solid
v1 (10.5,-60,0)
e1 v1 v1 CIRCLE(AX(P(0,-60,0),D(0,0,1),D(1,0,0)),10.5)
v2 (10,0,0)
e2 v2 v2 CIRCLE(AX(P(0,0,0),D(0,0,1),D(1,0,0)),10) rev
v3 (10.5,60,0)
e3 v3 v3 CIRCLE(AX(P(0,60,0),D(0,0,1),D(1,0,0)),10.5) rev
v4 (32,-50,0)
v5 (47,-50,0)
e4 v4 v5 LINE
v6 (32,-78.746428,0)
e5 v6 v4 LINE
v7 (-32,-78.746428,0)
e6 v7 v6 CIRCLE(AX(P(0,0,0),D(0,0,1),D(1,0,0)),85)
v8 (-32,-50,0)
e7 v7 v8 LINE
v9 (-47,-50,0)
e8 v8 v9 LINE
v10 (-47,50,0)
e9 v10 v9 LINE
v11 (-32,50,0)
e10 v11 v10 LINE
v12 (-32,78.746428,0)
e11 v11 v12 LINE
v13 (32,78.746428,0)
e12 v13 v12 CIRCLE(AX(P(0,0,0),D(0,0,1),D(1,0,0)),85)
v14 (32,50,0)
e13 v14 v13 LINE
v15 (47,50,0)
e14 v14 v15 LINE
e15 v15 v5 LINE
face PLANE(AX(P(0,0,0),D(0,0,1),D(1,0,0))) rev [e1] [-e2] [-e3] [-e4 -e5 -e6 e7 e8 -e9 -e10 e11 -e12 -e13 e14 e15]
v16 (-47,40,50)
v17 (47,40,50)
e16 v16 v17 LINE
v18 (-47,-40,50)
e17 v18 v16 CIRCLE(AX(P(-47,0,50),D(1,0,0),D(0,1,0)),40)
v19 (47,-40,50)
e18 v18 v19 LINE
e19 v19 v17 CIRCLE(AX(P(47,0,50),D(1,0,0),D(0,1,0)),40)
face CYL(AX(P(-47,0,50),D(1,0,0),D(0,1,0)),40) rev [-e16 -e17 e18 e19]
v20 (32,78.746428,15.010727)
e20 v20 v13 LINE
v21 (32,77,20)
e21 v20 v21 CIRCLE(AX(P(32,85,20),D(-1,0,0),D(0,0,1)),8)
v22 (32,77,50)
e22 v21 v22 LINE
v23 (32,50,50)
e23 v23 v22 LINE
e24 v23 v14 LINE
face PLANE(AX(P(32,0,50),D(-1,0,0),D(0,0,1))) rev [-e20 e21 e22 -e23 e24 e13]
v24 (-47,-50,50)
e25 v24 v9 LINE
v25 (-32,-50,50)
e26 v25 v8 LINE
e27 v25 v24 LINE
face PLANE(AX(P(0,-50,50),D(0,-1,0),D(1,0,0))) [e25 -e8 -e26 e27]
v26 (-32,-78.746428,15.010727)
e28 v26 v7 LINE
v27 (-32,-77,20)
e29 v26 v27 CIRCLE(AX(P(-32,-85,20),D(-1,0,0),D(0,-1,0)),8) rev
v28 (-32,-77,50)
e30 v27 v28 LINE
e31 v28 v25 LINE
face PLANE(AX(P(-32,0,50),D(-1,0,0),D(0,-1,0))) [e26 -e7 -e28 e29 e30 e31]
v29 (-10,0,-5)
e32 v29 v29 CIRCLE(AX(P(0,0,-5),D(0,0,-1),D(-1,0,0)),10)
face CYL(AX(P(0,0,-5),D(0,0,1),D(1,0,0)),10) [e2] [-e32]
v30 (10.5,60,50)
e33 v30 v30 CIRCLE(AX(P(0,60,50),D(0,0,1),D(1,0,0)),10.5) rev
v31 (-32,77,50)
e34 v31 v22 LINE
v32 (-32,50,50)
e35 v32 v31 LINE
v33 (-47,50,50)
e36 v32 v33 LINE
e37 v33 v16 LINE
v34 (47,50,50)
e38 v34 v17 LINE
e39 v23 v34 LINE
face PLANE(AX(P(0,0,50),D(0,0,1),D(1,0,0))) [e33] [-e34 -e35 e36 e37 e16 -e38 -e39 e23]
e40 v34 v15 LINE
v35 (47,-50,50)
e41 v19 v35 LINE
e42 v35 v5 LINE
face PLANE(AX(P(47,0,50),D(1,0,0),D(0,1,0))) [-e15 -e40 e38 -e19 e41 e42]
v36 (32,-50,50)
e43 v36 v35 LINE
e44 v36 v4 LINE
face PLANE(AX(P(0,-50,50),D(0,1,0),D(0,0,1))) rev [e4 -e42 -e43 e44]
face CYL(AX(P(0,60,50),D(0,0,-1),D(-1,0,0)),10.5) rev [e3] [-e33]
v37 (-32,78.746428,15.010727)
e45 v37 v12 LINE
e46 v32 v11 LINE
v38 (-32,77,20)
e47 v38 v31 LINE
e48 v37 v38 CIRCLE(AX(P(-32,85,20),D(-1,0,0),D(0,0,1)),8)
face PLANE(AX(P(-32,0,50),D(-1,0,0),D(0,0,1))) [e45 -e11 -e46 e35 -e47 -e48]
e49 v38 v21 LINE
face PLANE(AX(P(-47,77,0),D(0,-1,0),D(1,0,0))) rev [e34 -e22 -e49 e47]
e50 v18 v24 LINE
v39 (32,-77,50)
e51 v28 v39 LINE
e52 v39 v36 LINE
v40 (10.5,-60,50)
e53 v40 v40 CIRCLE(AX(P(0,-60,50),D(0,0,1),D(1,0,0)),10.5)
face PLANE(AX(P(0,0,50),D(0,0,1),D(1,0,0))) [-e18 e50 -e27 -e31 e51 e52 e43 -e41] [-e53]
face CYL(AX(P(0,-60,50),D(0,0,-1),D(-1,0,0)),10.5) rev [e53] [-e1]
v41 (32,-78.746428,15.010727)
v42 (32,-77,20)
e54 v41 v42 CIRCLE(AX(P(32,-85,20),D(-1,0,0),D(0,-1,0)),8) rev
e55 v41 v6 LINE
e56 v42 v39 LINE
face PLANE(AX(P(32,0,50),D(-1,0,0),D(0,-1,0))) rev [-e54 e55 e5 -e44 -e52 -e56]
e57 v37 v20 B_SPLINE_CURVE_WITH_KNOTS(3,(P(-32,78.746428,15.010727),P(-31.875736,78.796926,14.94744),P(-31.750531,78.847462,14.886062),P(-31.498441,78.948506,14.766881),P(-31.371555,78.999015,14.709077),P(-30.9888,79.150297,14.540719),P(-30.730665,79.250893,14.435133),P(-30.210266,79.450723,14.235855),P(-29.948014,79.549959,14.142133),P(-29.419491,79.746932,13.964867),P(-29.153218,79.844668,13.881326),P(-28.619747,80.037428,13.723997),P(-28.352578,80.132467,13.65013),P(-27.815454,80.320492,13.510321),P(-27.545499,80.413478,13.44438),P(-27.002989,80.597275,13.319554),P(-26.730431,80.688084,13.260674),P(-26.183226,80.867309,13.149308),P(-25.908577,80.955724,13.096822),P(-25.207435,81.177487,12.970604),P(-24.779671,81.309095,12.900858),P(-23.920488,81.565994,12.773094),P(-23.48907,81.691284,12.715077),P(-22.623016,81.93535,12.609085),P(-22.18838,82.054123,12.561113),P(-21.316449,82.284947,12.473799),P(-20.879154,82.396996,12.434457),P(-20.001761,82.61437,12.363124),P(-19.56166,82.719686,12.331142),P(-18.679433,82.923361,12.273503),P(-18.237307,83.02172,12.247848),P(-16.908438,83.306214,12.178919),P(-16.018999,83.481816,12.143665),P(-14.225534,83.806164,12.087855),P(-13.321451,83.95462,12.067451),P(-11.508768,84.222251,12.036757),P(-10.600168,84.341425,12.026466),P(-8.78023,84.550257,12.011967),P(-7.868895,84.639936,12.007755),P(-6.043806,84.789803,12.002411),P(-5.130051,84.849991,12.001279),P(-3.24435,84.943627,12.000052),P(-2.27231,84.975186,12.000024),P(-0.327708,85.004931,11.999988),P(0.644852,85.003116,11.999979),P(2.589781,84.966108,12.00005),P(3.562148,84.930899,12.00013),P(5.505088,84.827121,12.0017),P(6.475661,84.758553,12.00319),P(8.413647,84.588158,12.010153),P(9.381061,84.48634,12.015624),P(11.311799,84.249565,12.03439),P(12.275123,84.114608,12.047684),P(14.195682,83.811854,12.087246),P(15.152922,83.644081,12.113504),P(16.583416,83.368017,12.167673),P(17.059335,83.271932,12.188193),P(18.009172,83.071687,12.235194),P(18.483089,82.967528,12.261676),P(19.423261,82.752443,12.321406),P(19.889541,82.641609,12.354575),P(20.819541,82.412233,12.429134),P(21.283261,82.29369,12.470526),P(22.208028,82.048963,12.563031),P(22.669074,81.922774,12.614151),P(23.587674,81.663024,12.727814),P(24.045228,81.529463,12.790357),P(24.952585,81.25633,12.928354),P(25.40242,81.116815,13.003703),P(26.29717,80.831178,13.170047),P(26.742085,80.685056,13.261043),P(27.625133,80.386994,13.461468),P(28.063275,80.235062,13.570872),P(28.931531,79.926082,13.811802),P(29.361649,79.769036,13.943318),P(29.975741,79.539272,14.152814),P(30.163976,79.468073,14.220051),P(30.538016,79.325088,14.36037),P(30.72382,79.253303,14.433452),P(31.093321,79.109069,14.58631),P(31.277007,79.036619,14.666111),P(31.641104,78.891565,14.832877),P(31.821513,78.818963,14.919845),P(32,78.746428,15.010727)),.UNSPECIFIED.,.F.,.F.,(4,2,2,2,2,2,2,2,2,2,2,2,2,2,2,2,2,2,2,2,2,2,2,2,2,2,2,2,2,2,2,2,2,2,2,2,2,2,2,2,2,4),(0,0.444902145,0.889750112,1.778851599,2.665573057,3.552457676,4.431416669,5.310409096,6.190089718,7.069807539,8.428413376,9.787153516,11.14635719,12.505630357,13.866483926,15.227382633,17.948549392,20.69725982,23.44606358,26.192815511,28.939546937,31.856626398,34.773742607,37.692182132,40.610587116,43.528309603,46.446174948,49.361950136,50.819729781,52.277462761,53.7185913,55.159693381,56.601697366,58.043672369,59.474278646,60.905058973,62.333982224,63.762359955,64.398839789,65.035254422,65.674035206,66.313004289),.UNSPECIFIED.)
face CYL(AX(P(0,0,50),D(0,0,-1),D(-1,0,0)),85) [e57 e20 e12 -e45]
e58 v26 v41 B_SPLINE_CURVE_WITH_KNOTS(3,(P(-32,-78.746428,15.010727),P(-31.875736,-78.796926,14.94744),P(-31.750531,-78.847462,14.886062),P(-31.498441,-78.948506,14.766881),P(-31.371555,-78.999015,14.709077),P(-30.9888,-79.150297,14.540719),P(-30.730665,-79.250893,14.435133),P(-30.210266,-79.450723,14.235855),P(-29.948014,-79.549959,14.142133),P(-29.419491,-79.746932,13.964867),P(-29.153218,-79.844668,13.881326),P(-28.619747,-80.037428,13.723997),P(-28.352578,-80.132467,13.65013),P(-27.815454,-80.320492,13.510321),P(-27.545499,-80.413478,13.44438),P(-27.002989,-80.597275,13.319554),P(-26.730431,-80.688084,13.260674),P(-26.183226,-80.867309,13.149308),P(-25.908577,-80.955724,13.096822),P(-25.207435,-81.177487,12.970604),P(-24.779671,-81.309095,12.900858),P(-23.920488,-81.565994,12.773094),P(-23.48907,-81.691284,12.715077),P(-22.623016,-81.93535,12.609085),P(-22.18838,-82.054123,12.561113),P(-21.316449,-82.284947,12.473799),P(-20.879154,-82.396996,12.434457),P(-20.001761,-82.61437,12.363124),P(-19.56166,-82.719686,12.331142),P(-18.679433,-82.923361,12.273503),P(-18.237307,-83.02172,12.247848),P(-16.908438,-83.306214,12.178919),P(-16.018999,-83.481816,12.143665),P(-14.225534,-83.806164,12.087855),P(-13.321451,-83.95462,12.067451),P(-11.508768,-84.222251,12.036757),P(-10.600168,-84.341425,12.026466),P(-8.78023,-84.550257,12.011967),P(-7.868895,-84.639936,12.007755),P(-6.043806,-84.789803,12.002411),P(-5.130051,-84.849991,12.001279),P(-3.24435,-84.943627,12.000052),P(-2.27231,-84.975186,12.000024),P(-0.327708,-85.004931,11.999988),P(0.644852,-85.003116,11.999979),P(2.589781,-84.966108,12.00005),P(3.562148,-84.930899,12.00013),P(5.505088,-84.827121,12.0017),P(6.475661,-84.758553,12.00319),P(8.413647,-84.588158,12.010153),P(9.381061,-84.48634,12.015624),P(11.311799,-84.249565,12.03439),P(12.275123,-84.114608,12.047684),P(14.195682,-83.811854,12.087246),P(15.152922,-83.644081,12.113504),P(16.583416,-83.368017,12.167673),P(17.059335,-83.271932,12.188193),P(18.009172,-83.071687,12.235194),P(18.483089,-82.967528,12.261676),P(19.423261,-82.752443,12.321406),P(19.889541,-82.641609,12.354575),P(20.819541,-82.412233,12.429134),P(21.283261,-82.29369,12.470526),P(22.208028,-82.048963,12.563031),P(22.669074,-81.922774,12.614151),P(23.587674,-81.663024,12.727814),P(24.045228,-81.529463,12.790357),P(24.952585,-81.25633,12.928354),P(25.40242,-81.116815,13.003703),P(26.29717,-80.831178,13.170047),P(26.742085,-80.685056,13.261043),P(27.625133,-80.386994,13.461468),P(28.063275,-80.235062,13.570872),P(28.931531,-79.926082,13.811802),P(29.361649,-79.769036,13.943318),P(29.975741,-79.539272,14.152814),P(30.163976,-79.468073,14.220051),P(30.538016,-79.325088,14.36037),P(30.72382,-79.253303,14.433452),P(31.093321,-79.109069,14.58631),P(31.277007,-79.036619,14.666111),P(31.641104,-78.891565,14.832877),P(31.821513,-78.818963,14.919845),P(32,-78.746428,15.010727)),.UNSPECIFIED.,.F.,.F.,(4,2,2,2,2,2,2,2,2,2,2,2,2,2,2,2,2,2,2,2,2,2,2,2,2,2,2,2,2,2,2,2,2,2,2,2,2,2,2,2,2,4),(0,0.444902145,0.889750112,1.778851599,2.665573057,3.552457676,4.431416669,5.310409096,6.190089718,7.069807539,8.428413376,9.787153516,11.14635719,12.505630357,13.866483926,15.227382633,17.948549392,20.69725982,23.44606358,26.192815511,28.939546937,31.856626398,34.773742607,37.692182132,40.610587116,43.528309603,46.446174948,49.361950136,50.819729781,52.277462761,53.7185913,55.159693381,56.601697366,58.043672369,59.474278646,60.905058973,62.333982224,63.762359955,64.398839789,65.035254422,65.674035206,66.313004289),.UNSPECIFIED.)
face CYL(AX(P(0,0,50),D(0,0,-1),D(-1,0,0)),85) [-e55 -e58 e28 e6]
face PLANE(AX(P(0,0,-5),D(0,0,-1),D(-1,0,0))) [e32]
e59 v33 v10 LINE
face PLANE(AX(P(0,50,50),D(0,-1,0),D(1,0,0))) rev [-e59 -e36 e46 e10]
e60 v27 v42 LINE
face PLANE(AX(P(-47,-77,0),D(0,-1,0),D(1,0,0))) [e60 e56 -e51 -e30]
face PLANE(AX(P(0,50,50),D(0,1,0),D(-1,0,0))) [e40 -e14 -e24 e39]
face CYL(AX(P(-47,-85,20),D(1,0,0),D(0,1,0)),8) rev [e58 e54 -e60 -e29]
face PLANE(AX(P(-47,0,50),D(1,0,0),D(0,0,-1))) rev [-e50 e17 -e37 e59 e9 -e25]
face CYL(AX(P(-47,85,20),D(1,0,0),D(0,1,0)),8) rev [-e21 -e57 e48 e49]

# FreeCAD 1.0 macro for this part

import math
import FreeCAD as App
import Part
import Sketcher

V = App.Vector
Q = App.Units.Quantity

doc = App.newDocument("Part")
params = doc.addObject("Spreadsheet::Sheet", "Params")
for row, (alias, value) in enumerate([
    ("sketch1_diameter", "21 mm"),
    ("sketch1_radius", "85 mm"),
    ("sketch1_width", "15 mm"),
    ("sketch1_height", "100 mm"),
    ("pad1_length", "50 mm"),
    ("sketch2_radius", "40 mm"),
    ("sketch2_radius2", "8 mm"),
    ("sketch2_height", "30 mm"),
    ("sketch3_diameter", "20 mm"),
    ("pad2_length", "5 mm"),
], start=1):
    params.set(f"A{row}", alias)
    params.set(f"B{row}", "=" + value)
    params.setAlias(f"B{row}", alias)

body = doc.addObject("PartDesign::Body", "Body")

# Sketch on XY plane
sketch1 = body.newObject("Sketcher::SketchObject", "Sketch")
sketch1.AttachmentSupport = (doc.getObject("XY_Plane"), [""])
sketch1.MapMode = "FlatFace"
sketch1.addGeometry(Part.ArcOfCircle(Part.Circle(V(0, 0, 0), V(0, 0, 1), 85), math.radians(68), math.radians(112)), False)
sketch1.addGeometry(Part.LineSegment(V(-32, 79, 0), V(-32, 50, 0)), False)
sketch1.addGeometry(Part.LineSegment(V(-32, 50, 0), V(-47, 50, 0)), False)
sketch1.addGeometry(Part.LineSegment(V(-47, 50, 0), V(-47, -50, 0)), False)
sketch1.addGeometry(Part.LineSegment(V(-47, -50, 0), V(-32, -50, 0)), False)
sketch1.addGeometry(Part.LineSegment(V(-32, -50, 0), V(-32, -79, 0)), False)
sketch1.addGeometry(Part.ArcOfCircle(Part.Circle(V(0, 0, 0), V(0, 0, 1), 85), math.radians(-112), math.radians(-68)), False)
sketch1.addGeometry(Part.LineSegment(V(32, -79, 0), V(32, -50, 0)), False)
sketch1.addGeometry(Part.LineSegment(V(32, -50, 0), V(47, -50, 0)), False)
sketch1.addGeometry(Part.LineSegment(V(47, -50, 0), V(47, 50, 0)), False)
sketch1.addGeometry(Part.LineSegment(V(47, 50, 0), V(32, 50, 0)), False)
sketch1.addGeometry(Part.LineSegment(V(32, 50, 0), V(32, 79, 0)), False)
sketch1.addGeometry(Part.Circle(V(0, 60, 0), V(0, 0, 1), 10), False)
sketch1.addGeometry(Part.Circle(V(0, -60, 0), V(0, 0, 1), 10), False)
sketch1.addConstraint(Sketcher.Constraint("Coincident", 0, 2, 1, 1))
sketch1.addConstraint(Sketcher.Constraint("Coincident", 1, 2, 2, 1))
sketch1.addConstraint(Sketcher.Constraint("Coincident", 2, 2, 3, 1))
sketch1.addConstraint(Sketcher.Constraint("Coincident", 3, 2, 4, 1))
sketch1.addConstraint(Sketcher.Constraint("Coincident", 4, 2, 5, 1))
sketch1.addConstraint(Sketcher.Constraint("Coincident", 5, 2, 6, 1))
sketch1.addConstraint(Sketcher.Constraint("Coincident", 6, 2, 7, 1))
sketch1.addConstraint(Sketcher.Constraint("Coincident", 7, 2, 8, 1))
sketch1.addConstraint(Sketcher.Constraint("Coincident", 8, 2, 9, 1))
sketch1.addConstraint(Sketcher.Constraint("Coincident", 9, 2, 10, 1))
sketch1.addConstraint(Sketcher.Constraint("Coincident", 10, 2, 11, 1))
sketch1.addConstraint(Sketcher.Constraint("Coincident", 11, 2, 0, 1))
sketch1.addConstraint(Sketcher.Constraint("Vertical", 1))
sketch1.addConstraint(Sketcher.Constraint("Horizontal", 2))
sketch1.addConstraint(Sketcher.Constraint("Vertical", 3))
sketch1.addConstraint(Sketcher.Constraint("Horizontal", 4))
sketch1.addConstraint(Sketcher.Constraint("Vertical", 5))
sketch1.addConstraint(Sketcher.Constraint("Vertical", 7))
sketch1.addConstraint(Sketcher.Constraint("Horizontal", 8))
sketch1.addConstraint(Sketcher.Constraint("Vertical", 9))
sketch1.addConstraint(Sketcher.Constraint("Horizontal", 10))
sketch1.addConstraint(Sketcher.Constraint("Vertical", 11))
sketch1.addConstraint(Sketcher.Constraint("Coincident", 0, 3, -1, 1))
sketch1.addConstraint(Sketcher.Constraint("Coincident", 6, 3, -1, 1))
sketch1.addConstraint(Sketcher.Constraint("Equal", 0, 6))
sketch1.addConstraint(Sketcher.Constraint("Equal", 12, 13))
sketch1.addConstraint(Sketcher.Constraint("Symmetric", 12, 3, 13, 3, -1, 1))
sketch1.addConstraint(Sketcher.Constraint("Symmetric", 1, 2, 7, 2, -1, 1))
sketch1.addConstraint(Sketcher.Constraint("Symmetric", 3, 2, 9, 2, -1, 1))
sketch1.addConstraint(Sketcher.Constraint("Symmetric", 4, 2, 7, 2, -2))
sketch1.addConstraint(Sketcher.Constraint("PointOnObject", 12, 3, -2))
sketch1.addConstraint(Sketcher.Constraint("Horizontal", 0, 2, 11, 2))
sketch1.addConstraint(Sketcher.Constraint("Diameter", 12, Q("21 mm")))
sketch1.addConstraint(Sketcher.Constraint("Radius", 0, Q("85 mm")))
sketch1.addConstraint(Sketcher.Constraint("DistanceX", 2, 2, 2, 1, Q("15 mm")))
sketch1.addConstraint(Sketcher.Constraint("DistanceY", 3, 2, 3, 1, Q("100 mm")))
sketch1.addConstraint(Sketcher.Constraint("DistanceY", -1, 1, 12, 3, Q("60 mm")))
sketch1.addConstraint(Sketcher.Constraint("DistanceX", 0, 2, -1, 1, Q("32 mm")))
sketch1.setExpression("Constraints[32]", "Params.sketch1_diameter")
sketch1.setExpression("Constraints[33]", "Params.sketch1_radius")
sketch1.setExpression("Constraints[34]", "Params.sketch1_width")
sketch1.setExpression("Constraints[35]", "Params.sketch1_height")
pad1 = body.newObject("PartDesign::Pad", "Pad")
pad1.Profile = sketch1
pad1.setExpression("Length", "Params.pad1_length")

# Sketch on YZ plane
sketch2 = body.newObject("Sketcher::SketchObject", "Sketch001")
sketch2.AttachmentSupport = (doc.getObject("YZ_Plane"), [""])
sketch2.MapMode = "FlatFace"
sketch2.AttachmentOffset = App.Placement(V(0, 0, 47), App.Rotation())
sketch2.addGeometry(Part.LineSegment(V(40, 50, 0), V(-40, 50, 0)), False)
sketch2.addGeometry(Part.ArcOfCircle(Part.Circle(V(0, 50, 0), V(0, 0, 1), 40), math.radians(180), math.radians(360)), False)
sketch2.addGeometry(Part.LineSegment(V(-77, 20, 0), V(-77, 50, 0)), False)
sketch2.addGeometry(Part.LineSegment(V(-77, 50, 0), V(-85, 50, 0)), False)
sketch2.addGeometry(Part.LineSegment(V(-85, 50, 0), V(-85, 12, 0)), False)
sketch2.addGeometry(Part.ArcOfCircle(Part.Circle(V(-85, 20, 0), V(0, 0, 1), 8), math.radians(-90), math.radians(0)), False)
sketch2.addGeometry(Part.LineSegment(V(85, 12, 0), V(85, 50, 0)), False)
sketch2.addGeometry(Part.LineSegment(V(85, 50, 0), V(77, 50, 0)), False)
sketch2.addGeometry(Part.LineSegment(V(77, 50, 0), V(77, 20, 0)), False)
sketch2.addGeometry(Part.ArcOfCircle(Part.Circle(V(85, 20, 0), V(0, 0, 1), 8), math.radians(-180), math.radians(-90)), False)
sketch2.addConstraint(Sketcher.Constraint("Coincident", 0, 1, 1, 2))
sketch2.addConstraint(Sketcher.Constraint("Coincident", 1, 1, 0, 2))
sketch2.addConstraint(Sketcher.Constraint("Coincident", 2, 2, 3, 1))
sketch2.addConstraint(Sketcher.Constraint("Coincident", 3, 2, 4, 1))
sketch2.addConstraint(Sketcher.Constraint("Coincident", 4, 2, 5, 1))
sketch2.addConstraint(Sketcher.Constraint("Tangent", 5, 2, 2, 1))
sketch2.addConstraint(Sketcher.Constraint("Coincident", 6, 2, 7, 1))
sketch2.addConstraint(Sketcher.Constraint("Coincident", 7, 2, 8, 1))
sketch2.addConstraint(Sketcher.Constraint("Tangent", 8, 2, 9, 1))
sketch2.addConstraint(Sketcher.Constraint("Coincident", 9, 2, 6, 1))
sketch2.addConstraint(Sketcher.Constraint("Horizontal", 0))
sketch2.addConstraint(Sketcher.Constraint("Vertical", 2))
sketch2.addConstraint(Sketcher.Constraint("Horizontal", 3))
sketch2.addConstraint(Sketcher.Constraint("Vertical", 4))
sketch2.addConstraint(Sketcher.Constraint("Vertical", 6))
sketch2.addConstraint(Sketcher.Constraint("Horizontal", 7))
sketch2.addConstraint(Sketcher.Constraint("Vertical", 8))
sketch2.addConstraint(Sketcher.Constraint("Equal", 5, 9))
sketch2.addConstraint(Sketcher.Constraint("Symmetric", 5, 3, 9, 3, -2))
sketch2.addConstraint(Sketcher.Constraint("Symmetric", 3, 2, 6, 2, -2))
sketch2.addConstraint(Sketcher.Constraint("PointOnObject", 1, 3, -2))
sketch2.addConstraint(Sketcher.Constraint("Horizontal", 1, 3, 0, 1))
sketch2.addConstraint(Sketcher.Constraint("Horizontal", 1, 1, 2, 2))
sketch2.addConstraint(Sketcher.Constraint("Vertical", 5, 3, 3, 2))
sketch2.addConstraint(Sketcher.Constraint("Radius", 1, Q("40 mm")))
sketch2.addConstraint(Sketcher.Constraint("Radius", 5, Q("8 mm")))
sketch2.addConstraint(Sketcher.Constraint("DistanceY", 2, 1, 2, 2, Q("30 mm")))
sketch2.addConstraint(Sketcher.Constraint("DistanceY", -1, 1, 1, 3, Q("50 mm")))
sketch2.addConstraint(Sketcher.Constraint("DistanceX", 5, 3, -1, 1, Q("85 mm")))
sketch2.setExpression("Constraints[24]", "Params.sketch2_radius")
sketch2.setExpression("Constraints[25]", "Params.sketch2_radius2")
sketch2.setExpression("Constraints[26]", "Params.sketch2_height")
pocket1 = body.newObject("PartDesign::Pocket", "Pocket")
pocket1.Profile = sketch2
pocket1.Type = "ThroughAll"

# Sketch on XY plane
sketch3 = body.newObject("Sketcher::SketchObject", "Sketch002")
sketch3.AttachmentSupport = (doc.getObject("XY_Plane"), [""])
sketch3.MapMode = "FlatFace"
sketch3.addGeometry(Part.Circle(V(0, 0, 0), V(0, 0, 1), 10), False)
sketch3.addConstraint(Sketcher.Constraint("Coincident", 0, 3, -1, 1))
sketch3.addConstraint(Sketcher.Constraint("Diameter", 0, Q("20 mm")))
sketch3.setExpression("Constraints[1]", "Params.sketch3_diameter")
pad2 = body.newObject("PartDesign::Pad", "Pad001")
pad2.Profile = sketch3
pad2.setExpression("Length", "Params.pad2_length")
pad2.Reversed = True

doc.recompute()
